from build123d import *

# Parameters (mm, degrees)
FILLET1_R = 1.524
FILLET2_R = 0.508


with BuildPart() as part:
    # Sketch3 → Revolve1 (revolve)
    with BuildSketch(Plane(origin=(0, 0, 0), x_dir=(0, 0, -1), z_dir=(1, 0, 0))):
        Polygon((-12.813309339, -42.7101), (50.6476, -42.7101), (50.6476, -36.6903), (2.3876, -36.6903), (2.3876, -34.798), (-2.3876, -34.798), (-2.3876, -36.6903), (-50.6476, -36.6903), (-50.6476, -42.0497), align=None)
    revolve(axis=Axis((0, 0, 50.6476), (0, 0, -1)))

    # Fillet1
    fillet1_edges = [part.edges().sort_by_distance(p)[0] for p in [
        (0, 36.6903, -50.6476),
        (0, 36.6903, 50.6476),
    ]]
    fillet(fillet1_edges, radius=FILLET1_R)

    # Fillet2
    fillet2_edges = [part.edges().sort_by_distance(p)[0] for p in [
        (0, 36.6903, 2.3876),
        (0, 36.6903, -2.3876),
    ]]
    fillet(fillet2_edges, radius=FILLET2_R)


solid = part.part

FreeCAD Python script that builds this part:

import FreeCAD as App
import Part
import Sketcher
from FreeCAD import Vector
Q = App.Units.Quantity


def edges_at(feature, points):
    """Names of the edges that pass closest to the given points."""
    edges = feature.Shape.Edges
    near = lambda p: min(range(len(edges)), key=lambda i: edges[i].distToShape(Part.Vertex(*p))[0])
    return sorted({f"Edge{near(p) + 1}" for p in points})

doc = App.newDocument("Part")
body = doc.addObject("PartDesign::Body", "Body")

# Sketch on YZ plane
sketch1 = body.newObject("Sketcher::SketchObject", "Sketch")
sketch1.AttachmentSupport = (doc.getObject("YZ_Plane"), [""])
sketch1.MapMode = "FlatFace"
sketch1.addGeometry([
    Part.LineSegment(Vector(-42.7, 12.8, 0), Vector(-42.7, -50.6, 0)),  # 0
    Part.LineSegment(Vector(-42.7, -50.6, 0), Vector(-36.7, -50.6, 0)),  # 1
    Part.LineSegment(Vector(-36.7, -50.6, 0), Vector(-36.7, -2.4, 0)),  # 2
    Part.LineSegment(Vector(-36.7, -2.4, 0), Vector(-34.8, -2.4, 0)),  # 3
    Part.LineSegment(Vector(-34.8, -2.4, 0), Vector(-34.8, 2.4, 0)),  # 4
    Part.LineSegment(Vector(-34.8, 2.4, 0), Vector(-36.7, 2.4, 0)),  # 5
    Part.LineSegment(Vector(-36.7, 2.4, 0), Vector(-36.7, 50.6, 0)),  # 6
    Part.LineSegment(Vector(-36.7, 50.6, 0), Vector(-42, 50.6, 0)),  # 7
    Part.LineSegment(Vector(-42, 50.6, 0), Vector(-42.7, 12.8, 0)),  # 8
], False)
sketch1.addConstraint([
    Sketcher.Constraint("Coincident", 0, 2, 1, 1),
    Sketcher.Constraint("Coincident", 1, 2, 2, 1),
    Sketcher.Constraint("Coincident", 2, 2, 3, 1),
    Sketcher.Constraint("Coincident", 3, 2, 4, 1),
    Sketcher.Constraint("Coincident", 4, 2, 5, 1),
    Sketcher.Constraint("Coincident", 5, 2, 6, 1),
    Sketcher.Constraint("Coincident", 6, 2, 7, 1),
    Sketcher.Constraint("Coincident", 7, 2, 8, 1),
    Sketcher.Constraint("Coincident", 8, 2, 0, 1),
    Sketcher.Constraint("Vertical", 0),
    Sketcher.Constraint("Horizontal", 1),
    Sketcher.Constraint("Vertical", 2),
    Sketcher.Constraint("Horizontal", 3),
    Sketcher.Constraint("Vertical", 4),
    Sketcher.Constraint("Horizontal", 5),
    Sketcher.Constraint("Vertical", 6),
    Sketcher.Constraint("Horizontal", 7),
    Sketcher.Constraint("Symmetric", 2, 2, 5, 2, -1),
    Sketcher.Constraint("Equal", 2, 6),
    Sketcher.Constraint("DistanceY", 2, 1, 2, 2, Q("1.9 in")),
    Sketcher.Constraint("Angle", 8, Q("-91 deg")),
    Sketcher.Constraint("DistanceX", 1, 1, 1, 2, Q("0.237 in")),
    Sketcher.Constraint("DistanceX", 7, 2, 7, 1, Q("0.211 in")),
    Sketcher.Constraint("DistanceY", 4, 1, 4, 2, Q("0.188 in")),
    Sketcher.Constraint("DistanceX", 3, 2, -1, 1, Q("1.37 in")),
    Sketcher.Constraint("DistanceX", 3, 1, 3, 2, Q("0.0745 in")),
])
revolution = body.newObject("PartDesign::Revolution", "Revolution")
revolution.Profile = sketch1
revolution.ReferenceAxis = (sketch1, ["V_Axis"])
revolution.Angle = 360
doc.recompute()

fillet = body.newObject("PartDesign::Fillet", "Fillet")
fillet.Base = (revolution, edges_at(revolution, [(0, 36.69, -50.648), (0, 36.69, 50.648)]))
fillet.Radius = Q("0.06 in")
doc.recompute()

fillet2 = body.newObject("PartDesign::Fillet", "Fillet001")
fillet2.Base = (fillet, edges_at(fillet, [(0, 36.69, 2.388), (0, 36.69, -2.388)]))
fillet2.Radius = Q("0.02 in")

doc.recompute()
